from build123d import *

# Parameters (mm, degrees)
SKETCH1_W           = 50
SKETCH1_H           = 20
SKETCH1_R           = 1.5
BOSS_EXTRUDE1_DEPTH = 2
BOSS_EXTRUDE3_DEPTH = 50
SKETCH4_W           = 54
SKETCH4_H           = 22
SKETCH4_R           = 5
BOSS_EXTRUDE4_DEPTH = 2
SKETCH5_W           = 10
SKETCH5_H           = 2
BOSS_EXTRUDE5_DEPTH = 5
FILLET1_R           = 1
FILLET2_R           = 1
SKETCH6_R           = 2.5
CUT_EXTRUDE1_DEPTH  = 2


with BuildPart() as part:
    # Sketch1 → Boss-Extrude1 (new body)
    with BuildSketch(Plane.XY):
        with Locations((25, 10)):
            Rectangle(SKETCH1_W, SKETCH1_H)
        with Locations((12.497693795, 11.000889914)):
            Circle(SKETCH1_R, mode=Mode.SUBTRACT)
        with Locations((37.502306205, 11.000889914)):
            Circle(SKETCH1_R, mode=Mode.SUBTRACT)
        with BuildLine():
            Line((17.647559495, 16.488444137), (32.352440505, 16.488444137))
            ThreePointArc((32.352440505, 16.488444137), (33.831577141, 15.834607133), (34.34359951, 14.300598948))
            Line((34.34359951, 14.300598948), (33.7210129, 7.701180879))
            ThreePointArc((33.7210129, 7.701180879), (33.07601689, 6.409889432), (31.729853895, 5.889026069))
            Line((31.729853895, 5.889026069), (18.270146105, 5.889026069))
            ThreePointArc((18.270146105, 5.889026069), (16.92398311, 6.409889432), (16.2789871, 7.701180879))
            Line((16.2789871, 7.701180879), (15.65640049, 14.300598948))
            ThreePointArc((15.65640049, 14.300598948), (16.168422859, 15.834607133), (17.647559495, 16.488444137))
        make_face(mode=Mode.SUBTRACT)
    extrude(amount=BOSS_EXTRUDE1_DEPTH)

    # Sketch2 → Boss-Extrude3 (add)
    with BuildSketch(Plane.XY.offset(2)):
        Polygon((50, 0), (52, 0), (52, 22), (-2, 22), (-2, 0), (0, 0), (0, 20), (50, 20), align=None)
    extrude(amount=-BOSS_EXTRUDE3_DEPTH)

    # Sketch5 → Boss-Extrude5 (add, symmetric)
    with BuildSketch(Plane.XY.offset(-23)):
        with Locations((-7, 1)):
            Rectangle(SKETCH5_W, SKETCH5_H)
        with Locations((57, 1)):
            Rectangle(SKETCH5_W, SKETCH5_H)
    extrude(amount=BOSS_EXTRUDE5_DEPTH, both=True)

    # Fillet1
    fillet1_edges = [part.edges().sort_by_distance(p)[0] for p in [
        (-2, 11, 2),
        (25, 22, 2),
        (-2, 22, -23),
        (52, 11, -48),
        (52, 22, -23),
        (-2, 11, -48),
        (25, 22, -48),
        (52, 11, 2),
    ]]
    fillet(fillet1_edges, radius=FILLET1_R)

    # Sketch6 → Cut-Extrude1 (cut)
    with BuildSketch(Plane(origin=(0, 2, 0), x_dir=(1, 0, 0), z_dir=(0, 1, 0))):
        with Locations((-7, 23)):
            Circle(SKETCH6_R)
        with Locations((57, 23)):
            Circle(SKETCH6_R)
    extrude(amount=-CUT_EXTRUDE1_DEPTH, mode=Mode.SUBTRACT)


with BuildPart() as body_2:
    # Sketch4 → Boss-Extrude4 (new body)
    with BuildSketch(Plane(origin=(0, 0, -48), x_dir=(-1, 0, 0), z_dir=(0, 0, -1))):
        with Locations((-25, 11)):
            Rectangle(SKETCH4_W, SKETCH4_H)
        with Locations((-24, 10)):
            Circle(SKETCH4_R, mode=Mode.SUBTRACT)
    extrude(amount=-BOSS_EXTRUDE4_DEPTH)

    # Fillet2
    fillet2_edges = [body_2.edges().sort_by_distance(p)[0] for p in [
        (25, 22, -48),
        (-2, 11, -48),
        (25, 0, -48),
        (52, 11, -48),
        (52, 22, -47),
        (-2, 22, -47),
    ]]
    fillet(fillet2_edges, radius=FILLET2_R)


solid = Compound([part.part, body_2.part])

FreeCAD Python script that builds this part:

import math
import FreeCAD as App
import Part
import Sketcher
Q = App.Units.Quantity


def edges_at(feature, points):
    """Names of the edges that pass closest to the given points."""
    edges = feature.Shape.Edges
    near = lambda p: min(range(len(edges)), key=lambda i: edges[i].distToShape(Part.Vertex(*p))[0])
    return sorted({f"Edge{near(p) + 1}" for p in points})

doc = App.newDocument("Part")
body = doc.addObject("PartDesign::Body", "Body")

# Sketch on XY plane
sketch1 = body.newObject("Sketcher::SketchObject", "Sketch")
sketch1.AttachmentSupport = (doc.getObject("XY_Plane"), [""])
sketch1.MapMode = "FlatFace"
sketch1.addGeometry(Part.LineSegment(App.Vector(0, 20, 0), App.Vector(0, 0, 0)), False)
sketch1.addGeometry(Part.LineSegment(App.Vector(0, 0, 0), App.Vector(50, 0, 0)), False)
sketch1.addGeometry(Part.LineSegment(App.Vector(50, 0, 0), App.Vector(50, 20, 0)), False)
sketch1.addGeometry(Part.LineSegment(App.Vector(50, 20, 0), App.Vector(0, 20, 0)), False)
sketch1.addGeometry(Part.Circle(App.Vector(12.5, 11, 0), App.Vector(0, 0, 1), 1.5), False)
sketch1.addGeometry(Part.Circle(App.Vector(37.5, 11, 0), App.Vector(0, 0, 1), 1.5), False)
sketch1.addGeometry(Part.ArcOfCircle(Part.Circle(App.Vector(17.6, 14.5, 0), App.Vector(0, 0, 1), 2), math.radians(90), math.radians(185)), False)
sketch1.addGeometry(Part.LineSegment(App.Vector(17.6, 16.5, 0), App.Vector(32.4, 16.5, 0)), False)
sketch1.addGeometry(Part.ArcOfCircle(Part.Circle(App.Vector(32.4, 14.5, 0), App.Vector(0, 0, 1), 2), math.radians(-5), math.radians(90)), False)
sketch1.addGeometry(Part.LineSegment(App.Vector(34.3, 14.3, 0), App.Vector(33.7, 7.7, 0)), False)
sketch1.addGeometry(Part.ArcOfCircle(Part.Circle(App.Vector(31.7, 7.9, 0), App.Vector(0, 0, 1), 2), math.radians(-90), math.radians(-5)), False)
sketch1.addGeometry(Part.LineSegment(App.Vector(31.7, 5.9, 0), App.Vector(18.3, 5.9, 0)), False)
sketch1.addGeometry(Part.ArcOfCircle(Part.Circle(App.Vector(18.3, 7.9, 0), App.Vector(0, 0, 1), 2), math.radians(-175), math.radians(-90)), False)
sketch1.addGeometry(Part.LineSegment(App.Vector(16.3, 7.7, 0), App.Vector(15.7, 14.3, 0)), False)
sketch1.addConstraint(Sketcher.Constraint("Coincident", 0, 2, 1, 1))
sketch1.addConstraint(Sketcher.Constraint("Coincident", 1, 2, 2, 1))
sketch1.addConstraint(Sketcher.Constraint("Coincident", 2, 2, 3, 1))
sketch1.addConstraint(Sketcher.Constraint("Coincident", 3, 2, 0, 1))
sketch1.addConstraint(Sketcher.Constraint("Tangent", 6, 1, 7, 1))
sketch1.addConstraint(Sketcher.Constraint("Tangent", 7, 2, 8, 2))
sketch1.addConstraint(Sketcher.Constraint("Tangent", 8, 1, 9, 1))
sketch1.addConstraint(Sketcher.Constraint("Tangent", 9, 2, 10, 2))
sketch1.addConstraint(Sketcher.Constraint("Tangent", 10, 1, 11, 1))
sketch1.addConstraint(Sketcher.Constraint("Tangent", 11, 2, 12, 2))
sketch1.addConstraint(Sketcher.Constraint("Tangent", 12, 1, 13, 1))
sketch1.addConstraint(Sketcher.Constraint("Tangent", 13, 2, 6, 2))
sketch1.addConstraint(Sketcher.Constraint("Vertical", 0))
sketch1.addConstraint(Sketcher.Constraint("Horizontal", 1))
sketch1.addConstraint(Sketcher.Constraint("Vertical", 2))
sketch1.addConstraint(Sketcher.Constraint("Horizontal", 3))
sketch1.addConstraint(Sketcher.Constraint("Horizontal", 7))
sketch1.addConstraint(Sketcher.Constraint("Horizontal", 11))
sketch1.addConstraint(Sketcher.Constraint("Coincident", 0, 2, -1, 1))
sketch1.addConstraint(Sketcher.Constraint("Equal", 4, 5))
sketch1.addConstraint(Sketcher.Constraint("Equal", 6, 8))
sketch1.addConstraint(Sketcher.Constraint("Equal", 8, 10))
sketch1.addConstraint(Sketcher.Constraint("Equal", 10, 12))
sketch1.addConstraint(Sketcher.Constraint("Horizontal", 4, 3, 5, 3))
sketch1.addConstraint(Sketcher.Constraint("Horizontal", 9, 2, 12, 1))
sketch1.addConstraint(Sketcher.Constraint("Diameter", 4, Q("3 mm")))
sketch1.addConstraint(Sketcher.Constraint("Radius", 6, Q("2 mm")))
sketch1.addConstraint(Sketcher.Constraint("DistanceX", 1, 1, 1, 2, Q("50 mm")))
sketch1.addConstraint(Sketcher.Constraint("DistanceY", 0, 2, 0, 1, Q("20 mm")))
sketch1.addConstraint(Sketcher.Constraint("DistanceX", 7, 1, 7, 2, Q("14.704881 mm")))
sketch1.addConstraint(Sketcher.Constraint("DistanceX", -1, 1, 8, 1, Q("34.3436 mm")))
sketch1.addConstraint(Sketcher.Constraint("DistanceY", -1, 1, 8, 1, Q("14.300599 mm")))
sketch1.addConstraint(Sketcher.Constraint("DistanceX", -1, 1, 13, 2, Q("15.6564 mm")))
sketch1.addConstraint(Sketcher.Constraint("Distance", 9, Q("6.62872 mm")))
sketch1.addConstraint(Sketcher.Constraint("DistanceY", -1, 1, 4, 3, Q("11.00089 mm")))
sketch1.addConstraint(Sketcher.Constraint("DistanceX", 4, 3, 10, 3, Q("19.23216 mm")))
sketch1.addConstraint(Sketcher.Constraint("DistanceX", 12, 3, 5, 3, Q("19.23216 mm")))
pad1 = body.newObject("PartDesign::Pad", "Pad")
pad1.Profile = sketch1
pad1.Length = 2

# Sketch on XY plane
sketch2 = body.newObject("Sketcher::SketchObject", "Sketch001")
sketch2.AttachmentSupport = (doc.getObject("XY_Plane"), [""])
sketch2.MapMode = "FlatFace"
sketch2.AttachmentOffset = App.Placement(App.Vector(0, 0, 2), App.Rotation())
sketch2.addGeometry(Part.LineSegment(App.Vector(50, 0, 0), App.Vector(52, 0, 0)), False)
sketch2.addGeometry(Part.LineSegment(App.Vector(52, 0, 0), App.Vector(52, 22, 0)), False)
sketch2.addGeometry(Part.LineSegment(App.Vector(52, 22, 0), App.Vector(-2, 22, 0)), False)
sketch2.addGeometry(Part.LineSegment(App.Vector(-2, 22, 0), App.Vector(-2, 0, 0)), False)
sketch2.addGeometry(Part.LineSegment(App.Vector(-2, 0, 0), App.Vector(0, 0, 0)), False)
sketch2.addGeometry(Part.LineSegment(App.Vector(0, 0, 0), App.Vector(0, 20, 0)), False)
sketch2.addGeometry(Part.LineSegment(App.Vector(0, 20, 0), App.Vector(50, 20, 0)), False)
sketch2.addGeometry(Part.LineSegment(App.Vector(50, 20, 0), App.Vector(50, 0, 0)), False)
sketch2.addConstraint(Sketcher.Constraint("Coincident", 0, 2, 1, 1))
sketch2.addConstraint(Sketcher.Constraint("Coincident", 1, 2, 2, 1))
sketch2.addConstraint(Sketcher.Constraint("Coincident", 2, 2, 3, 1))
sketch2.addConstraint(Sketcher.Constraint("Coincident", 3, 2, 4, 1))
sketch2.addConstraint(Sketcher.Constraint("Coincident", 4, 2, 5, 1))
sketch2.addConstraint(Sketcher.Constraint("Coincident", 5, 2, 6, 1))
sketch2.addConstraint(Sketcher.Constraint("Coincident", 6, 2, 7, 1))
sketch2.addConstraint(Sketcher.Constraint("Coincident", 7, 2, 0, 1))
sketch2.addConstraint(Sketcher.Constraint("Horizontal", 0))
sketch2.addConstraint(Sketcher.Constraint("Vertical", 1))
sketch2.addConstraint(Sketcher.Constraint("Horizontal", 2))
sketch2.addConstraint(Sketcher.Constraint("Vertical", 3))
sketch2.addConstraint(Sketcher.Constraint("Horizontal", 4))
sketch2.addConstraint(Sketcher.Constraint("Vertical", 5))
sketch2.addConstraint(Sketcher.Constraint("Horizontal", 6))
sketch2.addConstraint(Sketcher.Constraint("Vertical", 7))
sketch2.addConstraint(Sketcher.Constraint("Coincident", 4, 2, -1, 1))
sketch2.addConstraint(Sketcher.Constraint("PointOnObject", 0, 2, -1))
sketch2.addConstraint(Sketcher.Constraint("Equal", 0, 4))
sketch2.addConstraint(Sketcher.Constraint("DistanceX", 0, 1, 0, 2, Q("2 mm")))
sketch2.addConstraint(Sketcher.Constraint("DistanceX", 2, 2, 2, 1, Q("54 mm")))
sketch2.addConstraint(Sketcher.Constraint("DistanceY", 1, 1, 1, 2, Q("22 mm")))
sketch2.addConstraint(Sketcher.Constraint("DistanceY", 5, 1, 5, 2, Q("20 mm")))
pad2 = body.newObject("PartDesign::Pad", "Pad001")
pad2.Profile = sketch2
pad2.Length = 50
pad2.Reversed = True

# Sketch on XY plane
sketch3 = body.newObject("Sketcher::SketchObject", "Sketch002")
sketch3.AttachmentSupport = (doc.getObject("XY_Plane"), [""])
sketch3.MapMode = "FlatFace"
sketch3.AttachmentOffset = App.Placement(App.Vector(0, 0, -23), App.Rotation())
sketch3.addGeometry(Part.LineSegment(App.Vector(-12, 2, 0), App.Vector(-12, 0, 0)), False)
sketch3.addGeometry(Part.LineSegment(App.Vector(-12, 0, 0), App.Vector(-2, 0, 0)), False)
sketch3.addGeometry(Part.LineSegment(App.Vector(-2, 0, 0), App.Vector(-2, 2, 0)), False)
sketch3.addGeometry(Part.LineSegment(App.Vector(-2, 2, 0), App.Vector(-12, 2, 0)), False)
sketch3.addGeometry(Part.LineSegment(App.Vector(52, 2, 0), App.Vector(52, 0, 0)), False)
sketch3.addGeometry(Part.LineSegment(App.Vector(52, 0, 0), App.Vector(62, 0, 0)), False)
sketch3.addGeometry(Part.LineSegment(App.Vector(62, 0, 0), App.Vector(62, 2, 0)), False)
sketch3.addGeometry(Part.LineSegment(App.Vector(62, 2, 0), App.Vector(52, 2, 0)), False)
sketch3.addConstraint(Sketcher.Constraint("Coincident", 0, 2, 1, 1))
sketch3.addConstraint(Sketcher.Constraint("Coincident", 1, 2, 2, 1))
sketch3.addConstraint(Sketcher.Constraint("Coincident", 2, 2, 3, 1))
sketch3.addConstraint(Sketcher.Constraint("Coincident", 3, 2, 0, 1))
sketch3.addConstraint(Sketcher.Constraint("Coincident", 4, 2, 5, 1))
sketch3.addConstraint(Sketcher.Constraint("Coincident", 5, 2, 6, 1))
sketch3.addConstraint(Sketcher.Constraint("Coincident", 6, 2, 7, 1))
sketch3.addConstraint(Sketcher.Constraint("Coincident", 7, 2, 4, 1))
sketch3.addConstraint(Sketcher.Constraint("Vertical", 0))
sketch3.addConstraint(Sketcher.Constraint("Horizontal", 1))
sketch3.addConstraint(Sketcher.Constraint("Vertical", 2))
sketch3.addConstraint(Sketcher.Constraint("Horizontal", 3))
sketch3.addConstraint(Sketcher.Constraint("Vertical", 4))
sketch3.addConstraint(Sketcher.Constraint("Horizontal", 5))
sketch3.addConstraint(Sketcher.Constraint("Vertical", 6))
sketch3.addConstraint(Sketcher.Constraint("Horizontal", 7))
sketch3.addConstraint(Sketcher.Constraint("PointOnObject", 0, 2, -1))
sketch3.addConstraint(Sketcher.Constraint("PointOnObject", 4, 2, -1))
sketch3.addConstraint(Sketcher.Constraint("Horizontal", 3, 2, 6, 2))
sketch3.addConstraint(Sketcher.Constraint("Equal", 3, 5))
sketch3.addConstraint(Sketcher.Constraint("DistanceX", 1, 1, 1, 2, Q("10 mm")))
sketch3.addConstraint(Sketcher.Constraint("DistanceY", 0, 2, 0, 1, Q("2 mm")))
sketch3.addConstraint(Sketcher.Constraint("DistanceX", 0, 2, -1, 1, Q("12 mm")))
sketch3.addConstraint(Sketcher.Constraint("DistanceX", -1, 1, 4, 2, Q("52 mm")))
pad3 = body.newObject("PartDesign::Pad", "Pad002")
pad3.Profile = sketch3
pad3.Length = 10
pad3.Midplane = True
doc.recompute()

fillet = body.newObject("PartDesign::Fillet", "Fillet")
fillet.Base = (pad3, edges_at(pad3, [
    (-2, 11, 2),
    (25, 22, 2),
    (-2, 22, -23),
    (52, 11, -48),
    (52, 22, -23),
    (-2, 11, -48),
    (25, 22, -48),
    (52, 11, 2),
]))
fillet.Radius = 1

# Sketch on XZ plane
sketch4 = body.newObject("Sketcher::SketchObject", "Sketch003")
sketch4.AttachmentSupport = (doc.getObject("XZ_Plane"), [""])
sketch4.MapMode = "FlatFace"
sketch4.AttachmentOffset = App.Placement(App.Vector(0, 0, -2), App.Rotation())
sketch4.addGeometry(Part.Circle(App.Vector(-7, -23, 0), App.Vector(0, 0, 1), 2.5), False)
sketch4.addGeometry(Part.Circle(App.Vector(57, -23, 0), App.Vector(0, 0, 1), 2.5), False)
sketch4.addConstraint(Sketcher.Constraint("Equal", 0, 1))
sketch4.addConstraint(Sketcher.Constraint("Horizontal", 0, 3, 1, 3))
sketch4.addConstraint(Sketcher.Constraint("Diameter", 0, Q("5 mm")))
sketch4.addConstraint(Sketcher.Constraint("DistanceX", 0, 3, -1, 1, Q("7 mm")))
sketch4.addConstraint(Sketcher.Constraint("DistanceY", 0, 3, -1, 1, Q("23 mm")))
sketch4.addConstraint(Sketcher.Constraint("DistanceX", -1, 1, 1, 3, Q("57 mm")))
pocket1 = body.newObject("PartDesign::Pocket", "Pocket")
pocket1.Profile = sketch4
pocket1.Length = 2
pocket1.Reversed = True
body2 = doc.addObject("PartDesign::Body", "Body001")

# Sketch on XY plane
sketch5 = body2.newObject("Sketcher::SketchObject", "Sketch004")
sketch5.AttachmentSupport = (doc.getObject("XY_Plane001"), [""])
sketch5.MapMode = "FlatFace"
sketch5.AttachmentOffset = App.Placement(App.Vector(0, 0, -48), App.Rotation())
sketch5.addGeometry(Part.LineSegment(App.Vector(52, 22, 0), App.Vector(52, 0, 0)), False)
sketch5.addGeometry(Part.LineSegment(App.Vector(52, 0, 0), App.Vector(-2, 0, 0)), False)
sketch5.addGeometry(Part.LineSegment(App.Vector(-2, 0, 0), App.Vector(-2, 22, 0)), False)
sketch5.addGeometry(Part.LineSegment(App.Vector(-2, 22, 0), App.Vector(52, 22, 0)), False)
sketch5.addGeometry(Part.Circle(App.Vector(24, 10, 0), App.Vector(0, 0, 1), 5), False)
sketch5.addConstraint(Sketcher.Constraint("Coincident", 0, 2, 1, 1))
sketch5.addConstraint(Sketcher.Constraint("Coincident", 1, 2, 2, 1))
sketch5.addConstraint(Sketcher.Constraint("Coincident", 2, 2, 3, 1))
sketch5.addConstraint(Sketcher.Constraint("Coincident", 3, 2, 0, 1))
sketch5.addConstraint(Sketcher.Constraint("Vertical", 0))
sketch5.addConstraint(Sketcher.Constraint("Horizontal", 1))
sketch5.addConstraint(Sketcher.Constraint("Vertical", 2))
sketch5.addConstraint(Sketcher.Constraint("Horizontal", 3))
sketch5.addConstraint(Sketcher.Constraint("PointOnObject", 0, 2, -1))
sketch5.addConstraint(Sketcher.Constraint("Diameter", 4, Q("10 mm")))
sketch5.addConstraint(Sketcher.Constraint("DistanceX", 1, 2, 1, 1, Q("54 mm")))
sketch5.addConstraint(Sketcher.Constraint("DistanceY", 0, 2, 0, 1, Q("22 mm")))
sketch5.addConstraint(Sketcher.Constraint("DistanceX", -1, 1, 4, 3, Q("24 mm")))
sketch5.addConstraint(Sketcher.Constraint("DistanceY", -1, 1, 4, 3, Q("10 mm")))
sketch5.addConstraint(Sketcher.Constraint("DistanceX", -1, 1, 0, 2, Q("52 mm")))
pad4 = body2.newObject("PartDesign::Pad", "Pad003")
pad4.Profile = sketch5
pad4.Length = 2
doc.recompute()

fillet2 = body2.newObject("PartDesign::Fillet", "Fillet001")
fillet2.Base = (pad4, edges_at(pad4, [
    (25, 22, -48),
    (-2, 11, -48),
    (25, 0, -48),
    (52, 11, -48),
    (52, 22, -47),
    (-2, 22, -47),
]))
fillet2.Radius = 1

doc.recompute()
